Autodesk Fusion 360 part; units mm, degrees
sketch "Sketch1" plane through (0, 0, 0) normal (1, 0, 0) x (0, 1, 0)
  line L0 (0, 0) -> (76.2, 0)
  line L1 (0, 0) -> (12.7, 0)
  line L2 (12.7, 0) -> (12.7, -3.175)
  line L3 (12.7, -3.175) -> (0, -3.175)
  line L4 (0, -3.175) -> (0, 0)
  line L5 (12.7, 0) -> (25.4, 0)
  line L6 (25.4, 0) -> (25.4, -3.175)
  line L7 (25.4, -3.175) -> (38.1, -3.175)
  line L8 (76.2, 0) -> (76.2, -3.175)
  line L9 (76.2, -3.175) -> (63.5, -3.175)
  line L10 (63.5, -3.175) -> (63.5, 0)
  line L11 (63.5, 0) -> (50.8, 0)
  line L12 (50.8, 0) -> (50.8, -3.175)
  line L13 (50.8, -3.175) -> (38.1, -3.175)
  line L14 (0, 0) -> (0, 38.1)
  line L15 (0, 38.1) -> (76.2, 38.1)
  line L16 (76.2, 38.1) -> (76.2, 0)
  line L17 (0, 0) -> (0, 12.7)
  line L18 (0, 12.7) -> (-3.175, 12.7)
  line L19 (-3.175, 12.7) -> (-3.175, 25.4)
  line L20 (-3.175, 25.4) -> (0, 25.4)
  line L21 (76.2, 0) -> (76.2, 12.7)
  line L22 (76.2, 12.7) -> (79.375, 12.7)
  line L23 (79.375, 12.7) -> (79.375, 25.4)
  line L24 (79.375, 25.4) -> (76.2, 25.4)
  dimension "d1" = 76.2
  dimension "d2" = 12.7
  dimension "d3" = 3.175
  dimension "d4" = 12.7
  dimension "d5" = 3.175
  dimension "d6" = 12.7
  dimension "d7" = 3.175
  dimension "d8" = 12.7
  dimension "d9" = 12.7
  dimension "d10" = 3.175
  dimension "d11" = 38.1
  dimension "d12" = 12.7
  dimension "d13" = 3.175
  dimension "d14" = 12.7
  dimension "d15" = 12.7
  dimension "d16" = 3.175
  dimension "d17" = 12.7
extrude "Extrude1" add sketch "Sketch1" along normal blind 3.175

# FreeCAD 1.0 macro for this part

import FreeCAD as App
import Part
import Sketcher
Q = App.Units.Quantity

doc = App.newDocument("Part")
body = doc.addObject("PartDesign::Body", "Body")

# Sketch on YZ plane
sketch1 = body.newObject("Sketcher::SketchObject", "Sketch")
sketch1.AttachmentSupport = (doc.getObject("YZ_Plane"), [""])
sketch1.MapMode = "FlatFace"
sketch1.addGeometry(Part.LineSegment(App.Vector(0, 12.7, 0), App.Vector(0, -3.175, 0)), False)
sketch1.addGeometry(Part.LineSegment(App.Vector(0, -3.175, 0), App.Vector(12.7, -3.175, 0)), False)
sketch1.addGeometry(Part.LineSegment(App.Vector(12.7, -3.175, 0), App.Vector(12.7, 0, 0)), False)
sketch1.addGeometry(Part.LineSegment(App.Vector(12.7, 0, 0), App.Vector(25.4, 0, 0)), False)
sketch1.addGeometry(Part.LineSegment(App.Vector(25.4, 0, 0), App.Vector(25.4, -3.175, 0)), False)
sketch1.addGeometry(Part.LineSegment(App.Vector(25.4, -3.175, 0), App.Vector(50.8, -3.175, 0)), False)
sketch1.addGeometry(Part.LineSegment(App.Vector(50.8, -3.175, 0), App.Vector(50.8, 0, 0)), False)
sketch1.addGeometry(Part.LineSegment(App.Vector(50.8, 0, 0), App.Vector(63.5, 0, 0)), False)
sketch1.addGeometry(Part.LineSegment(App.Vector(63.5, 0, 0), App.Vector(63.5, -3.175, 0)), False)
sketch1.addGeometry(Part.LineSegment(App.Vector(63.5, -3.175, 0), App.Vector(76.2, -3.175, 0)), False)
sketch1.addGeometry(Part.LineSegment(App.Vector(76.2, -3.175, 0), App.Vector(76.2, 12.7, 0)), False)
sketch1.addGeometry(Part.LineSegment(App.Vector(76.2, 12.7, 0), App.Vector(79.375, 12.7, 0)), False)
sketch1.addGeometry(Part.LineSegment(App.Vector(79.375, 12.7, 0), App.Vector(79.375, 25.4, 0)), False)
sketch1.addGeometry(Part.LineSegment(App.Vector(79.375, 25.4, 0), App.Vector(76.2, 25.4, 0)), False)
sketch1.addGeometry(Part.LineSegment(App.Vector(76.2, 25.4, 0), App.Vector(76.2, 38.1, 0)), False)
sketch1.addGeometry(Part.LineSegment(App.Vector(76.2, 38.1, 0), App.Vector(0, 38.1, 0)), False)
sketch1.addGeometry(Part.LineSegment(App.Vector(0, 38.1, 0), App.Vector(0, 25.4, 0)), False)
sketch1.addGeometry(Part.LineSegment(App.Vector(0, 25.4, 0), App.Vector(-3.175, 25.4, 0)), False)
sketch1.addGeometry(Part.LineSegment(App.Vector(-3.175, 25.4, 0), App.Vector(-3.175, 12.7, 0)), False)
sketch1.addGeometry(Part.LineSegment(App.Vector(-3.175, 12.7, 0), App.Vector(0, 12.7, 0)), False)
sketch1.addConstraint(Sketcher.Constraint("Coincident", 0, 2, 1, 1))
sketch1.addConstraint(Sketcher.Constraint("Coincident", 1, 2, 2, 1))
sketch1.addConstraint(Sketcher.Constraint("Coincident", 2, 2, 3, 1))
sketch1.addConstraint(Sketcher.Constraint("Coincident", 3, 2, 4, 1))
sketch1.addConstraint(Sketcher.Constraint("Coincident", 4, 2, 5, 1))
sketch1.addConstraint(Sketcher.Constraint("Coincident", 5, 2, 6, 1))
sketch1.addConstraint(Sketcher.Constraint("Coincident", 6, 2, 7, 1))
sketch1.addConstraint(Sketcher.Constraint("Coincident", 7, 2, 8, 1))
sketch1.addConstraint(Sketcher.Constraint("Coincident", 8, 2, 9, 1))
sketch1.addConstraint(Sketcher.Constraint("Coincident", 9, 2, 10, 1))
sketch1.addConstraint(Sketcher.Constraint("Coincident", 10, 2, 11, 1))
sketch1.addConstraint(Sketcher.Constraint("Coincident", 11, 2, 12, 1))
sketch1.addConstraint(Sketcher.Constraint("Coincident", 12, 2, 13, 1))
sketch1.addConstraint(Sketcher.Constraint("Coincident", 13, 2, 14, 1))
sketch1.addConstraint(Sketcher.Constraint("Coincident", 14, 2, 15, 1))
sketch1.addConstraint(Sketcher.Constraint("Coincident", 15, 2, 16, 1))
sketch1.addConstraint(Sketcher.Constraint("Coincident", 16, 2, 17, 1))
sketch1.addConstraint(Sketcher.Constraint("Coincident", 17, 2, 18, 1))
sketch1.addConstraint(Sketcher.Constraint("Coincident", 18, 2, 19, 1))
sketch1.addConstraint(Sketcher.Constraint("Coincident", 19, 2, 0, 1))
sketch1.addConstraint(Sketcher.Constraint("Vertical", 0))
sketch1.addConstraint(Sketcher.Constraint("Horizontal", 1))
sketch1.addConstraint(Sketcher.Constraint("Vertical", 2))
sketch1.addConstraint(Sketcher.Constraint("Horizontal", 3))
sketch1.addConstraint(Sketcher.Constraint("Vertical", 4))
sketch1.addConstraint(Sketcher.Constraint("Horizontal", 5))
sketch1.addConstraint(Sketcher.Constraint("Vertical", 6))
sketch1.addConstraint(Sketcher.Constraint("Horizontal", 7))
sketch1.addConstraint(Sketcher.Constraint("Vertical", 8))
sketch1.addConstraint(Sketcher.Constraint("Horizontal", 9))
sketch1.addConstraint(Sketcher.Constraint("Vertical", 10))
sketch1.addConstraint(Sketcher.Constraint("Horizontal", 11))
sketch1.addConstraint(Sketcher.Constraint("Vertical", 12))
sketch1.addConstraint(Sketcher.Constraint("Horizontal", 13))
sketch1.addConstraint(Sketcher.Constraint("Vertical", 14))
sketch1.addConstraint(Sketcher.Constraint("Horizontal", 15))
sketch1.addConstraint(Sketcher.Constraint("Vertical", 16))
sketch1.addConstraint(Sketcher.Constraint("Horizontal", 17))
sketch1.addConstraint(Sketcher.Constraint("Vertical", 18))
sketch1.addConstraint(Sketcher.Constraint("Horizontal", 19))
sketch1.addConstraint(Sketcher.Constraint("PointOnObject", 0, 2, -2))
sketch1.addConstraint(Sketcher.Constraint("PointOnObject", 2, 2, -1))
sketch1.addConstraint(Sketcher.Constraint("PointOnObject", 6, 2, -1))
sketch1.addConstraint(Sketcher.Constraint("PointOnObject", 15, 2, -2))
sketch1.addConstraint(Sketcher.Constraint("Horizontal", 1, 2, 4, 2))
sketch1.addConstraint(Sketcher.Constraint("Horizontal", 5, 2, 8, 2))
sketch1.addConstraint(Sketcher.Constraint("Horizontal", 13, 2, 16, 2))
sketch1.addConstraint(Sketcher.Constraint("Horizontal", 11, 2, 18, 2))
sketch1.addConstraint(Sketcher.Constraint("Vertical", 10, 2, 13, 2))
sketch1.addConstraint(Sketcher.Constraint("Equal", 1, 3))
sketch1.addConstraint(Sketcher.Constraint("Equal", 3, 7))
sketch1.addConstraint(Sketcher.Constraint("Equal", 7, 9))
sketch1.addConstraint(Sketcher.Constraint("Equal", 13, 17))
sketch1.addConstraint(Sketcher.Constraint("Equal", 19, 2))
sketch1.addConstraint(Sketcher.Constraint("Equal", 9, 12))
sketch1.addConstraint(Sketcher.Constraint("Equal", 12, 14))
sketch1.addConstraint(Sketcher.Constraint("DistanceX", 15, 2, 15, 1, Q("3 in")))
sketch1.addConstraint(Sketcher.Constraint("DistanceX", 1, 1, 1, 2, Q("0.5 in")))
sketch1.addConstraint(Sketcher.Constraint("DistanceY", -1, 1, 10, 2, Q("0.5 in")))
sketch1.addConstraint(Sketcher.Constraint("DistanceX", 11, 1, 11, 2, Q("0.125 in")))
pad1 = body.newObject("PartDesign::Pad", "Pad")
pad1.Profile = sketch1
pad1.Length = Q("0.125 in")

doc.recompute()
